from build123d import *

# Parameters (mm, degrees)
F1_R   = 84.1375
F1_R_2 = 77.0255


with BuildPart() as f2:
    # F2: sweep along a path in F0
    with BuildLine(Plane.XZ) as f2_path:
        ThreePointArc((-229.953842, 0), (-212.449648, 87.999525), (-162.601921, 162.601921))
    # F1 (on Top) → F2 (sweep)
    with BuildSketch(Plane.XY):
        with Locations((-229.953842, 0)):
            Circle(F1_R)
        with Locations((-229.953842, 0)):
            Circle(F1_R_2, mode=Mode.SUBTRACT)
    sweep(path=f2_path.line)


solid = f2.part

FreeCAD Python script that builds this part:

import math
import FreeCAD as App
import Part
import Sketcher
Q = App.Units.Quantity

doc = App.newDocument("Part")
params = doc.addObject("Spreadsheet::Sheet", "Params")
for row, (alias, value) in enumerate([
    ("sketch1_diameter", "6.625 in"),
    ("sketch1_diameter2", "6.065 in"),
], start=1):
    params.set(f"A{row}", alias)
    params.set(f"B{row}", "=" + value)
    params.setAlias(f"B{row}", alias)

body = doc.addObject("PartDesign::Body", "Body")

# Sketch on XY plane
sketch1 = doc.addObject("Sketcher::SketchObject", "Sketch")
body.addObject(sketch1)
sketch1.AttachmentSupport = (doc.XY_Plane, [""])
sketch1.MapMode = "FlatFace"
sketch1.addGeometry([
    Part.Circle(App.Vector(-230, 0, 0), App.Vector(0, 0, 1), 84),
    Part.Circle(App.Vector(-230, 0, 0), App.Vector(0, 0, 1), 77),
], False)
sketch1.addConstraint([
    Sketcher.Constraint("Coincident", 1, 3, 0, 3),
    Sketcher.Constraint("PointOnObject", 0, 3, -1),
    Sketcher.Constraint("Diameter", 0, Q("6.625 in")),
    Sketcher.Constraint("Diameter", 1, Q("6.065 in")),
    Sketcher.Constraint("DistanceX", 0, 3, -1, 1, 229.953842),
])
sketch1.setExpression("Constraints[2]", "Params.sketch1_diameter")
sketch1.setExpression("Constraints[3]", "Params.sketch1_diameter2")

# Sketch on XZ plane
sketch2 = doc.addObject("Sketcher::SketchObject", "Sketch001")
body.addObject(sketch2)
sketch2.AttachmentSupport = (doc.XZ_Plane, [""])
sketch2.MapMode = "FlatFace"
sketch2.addGeometry(Part.ArcOfCircle(Part.Circle(App.Vector(0, 0, 0), App.Vector(0, 0, 1), 230), math.radians(135), math.radians(180)), False)
sketch2.addConstraint([
    Sketcher.Constraint("Coincident", 0, 3, -1, 1),
    Sketcher.Constraint("PointOnObject", 0, 2, -1),
    Sketcher.Constraint("Radius", 0, 229.953845),
    Sketcher.Constraint("DistanceX", 0, 1, -1, 1, 162.601921),
])
doc.recompute()

additivepipe = doc.addObject("PartDesign::AdditivePipe", "AdditivePipe")
body.addObject(additivepipe)
additivepipe.Profile = sketch1
additivepipe.Spine = (sketch2, ["Edge1"])

doc.recompute()
